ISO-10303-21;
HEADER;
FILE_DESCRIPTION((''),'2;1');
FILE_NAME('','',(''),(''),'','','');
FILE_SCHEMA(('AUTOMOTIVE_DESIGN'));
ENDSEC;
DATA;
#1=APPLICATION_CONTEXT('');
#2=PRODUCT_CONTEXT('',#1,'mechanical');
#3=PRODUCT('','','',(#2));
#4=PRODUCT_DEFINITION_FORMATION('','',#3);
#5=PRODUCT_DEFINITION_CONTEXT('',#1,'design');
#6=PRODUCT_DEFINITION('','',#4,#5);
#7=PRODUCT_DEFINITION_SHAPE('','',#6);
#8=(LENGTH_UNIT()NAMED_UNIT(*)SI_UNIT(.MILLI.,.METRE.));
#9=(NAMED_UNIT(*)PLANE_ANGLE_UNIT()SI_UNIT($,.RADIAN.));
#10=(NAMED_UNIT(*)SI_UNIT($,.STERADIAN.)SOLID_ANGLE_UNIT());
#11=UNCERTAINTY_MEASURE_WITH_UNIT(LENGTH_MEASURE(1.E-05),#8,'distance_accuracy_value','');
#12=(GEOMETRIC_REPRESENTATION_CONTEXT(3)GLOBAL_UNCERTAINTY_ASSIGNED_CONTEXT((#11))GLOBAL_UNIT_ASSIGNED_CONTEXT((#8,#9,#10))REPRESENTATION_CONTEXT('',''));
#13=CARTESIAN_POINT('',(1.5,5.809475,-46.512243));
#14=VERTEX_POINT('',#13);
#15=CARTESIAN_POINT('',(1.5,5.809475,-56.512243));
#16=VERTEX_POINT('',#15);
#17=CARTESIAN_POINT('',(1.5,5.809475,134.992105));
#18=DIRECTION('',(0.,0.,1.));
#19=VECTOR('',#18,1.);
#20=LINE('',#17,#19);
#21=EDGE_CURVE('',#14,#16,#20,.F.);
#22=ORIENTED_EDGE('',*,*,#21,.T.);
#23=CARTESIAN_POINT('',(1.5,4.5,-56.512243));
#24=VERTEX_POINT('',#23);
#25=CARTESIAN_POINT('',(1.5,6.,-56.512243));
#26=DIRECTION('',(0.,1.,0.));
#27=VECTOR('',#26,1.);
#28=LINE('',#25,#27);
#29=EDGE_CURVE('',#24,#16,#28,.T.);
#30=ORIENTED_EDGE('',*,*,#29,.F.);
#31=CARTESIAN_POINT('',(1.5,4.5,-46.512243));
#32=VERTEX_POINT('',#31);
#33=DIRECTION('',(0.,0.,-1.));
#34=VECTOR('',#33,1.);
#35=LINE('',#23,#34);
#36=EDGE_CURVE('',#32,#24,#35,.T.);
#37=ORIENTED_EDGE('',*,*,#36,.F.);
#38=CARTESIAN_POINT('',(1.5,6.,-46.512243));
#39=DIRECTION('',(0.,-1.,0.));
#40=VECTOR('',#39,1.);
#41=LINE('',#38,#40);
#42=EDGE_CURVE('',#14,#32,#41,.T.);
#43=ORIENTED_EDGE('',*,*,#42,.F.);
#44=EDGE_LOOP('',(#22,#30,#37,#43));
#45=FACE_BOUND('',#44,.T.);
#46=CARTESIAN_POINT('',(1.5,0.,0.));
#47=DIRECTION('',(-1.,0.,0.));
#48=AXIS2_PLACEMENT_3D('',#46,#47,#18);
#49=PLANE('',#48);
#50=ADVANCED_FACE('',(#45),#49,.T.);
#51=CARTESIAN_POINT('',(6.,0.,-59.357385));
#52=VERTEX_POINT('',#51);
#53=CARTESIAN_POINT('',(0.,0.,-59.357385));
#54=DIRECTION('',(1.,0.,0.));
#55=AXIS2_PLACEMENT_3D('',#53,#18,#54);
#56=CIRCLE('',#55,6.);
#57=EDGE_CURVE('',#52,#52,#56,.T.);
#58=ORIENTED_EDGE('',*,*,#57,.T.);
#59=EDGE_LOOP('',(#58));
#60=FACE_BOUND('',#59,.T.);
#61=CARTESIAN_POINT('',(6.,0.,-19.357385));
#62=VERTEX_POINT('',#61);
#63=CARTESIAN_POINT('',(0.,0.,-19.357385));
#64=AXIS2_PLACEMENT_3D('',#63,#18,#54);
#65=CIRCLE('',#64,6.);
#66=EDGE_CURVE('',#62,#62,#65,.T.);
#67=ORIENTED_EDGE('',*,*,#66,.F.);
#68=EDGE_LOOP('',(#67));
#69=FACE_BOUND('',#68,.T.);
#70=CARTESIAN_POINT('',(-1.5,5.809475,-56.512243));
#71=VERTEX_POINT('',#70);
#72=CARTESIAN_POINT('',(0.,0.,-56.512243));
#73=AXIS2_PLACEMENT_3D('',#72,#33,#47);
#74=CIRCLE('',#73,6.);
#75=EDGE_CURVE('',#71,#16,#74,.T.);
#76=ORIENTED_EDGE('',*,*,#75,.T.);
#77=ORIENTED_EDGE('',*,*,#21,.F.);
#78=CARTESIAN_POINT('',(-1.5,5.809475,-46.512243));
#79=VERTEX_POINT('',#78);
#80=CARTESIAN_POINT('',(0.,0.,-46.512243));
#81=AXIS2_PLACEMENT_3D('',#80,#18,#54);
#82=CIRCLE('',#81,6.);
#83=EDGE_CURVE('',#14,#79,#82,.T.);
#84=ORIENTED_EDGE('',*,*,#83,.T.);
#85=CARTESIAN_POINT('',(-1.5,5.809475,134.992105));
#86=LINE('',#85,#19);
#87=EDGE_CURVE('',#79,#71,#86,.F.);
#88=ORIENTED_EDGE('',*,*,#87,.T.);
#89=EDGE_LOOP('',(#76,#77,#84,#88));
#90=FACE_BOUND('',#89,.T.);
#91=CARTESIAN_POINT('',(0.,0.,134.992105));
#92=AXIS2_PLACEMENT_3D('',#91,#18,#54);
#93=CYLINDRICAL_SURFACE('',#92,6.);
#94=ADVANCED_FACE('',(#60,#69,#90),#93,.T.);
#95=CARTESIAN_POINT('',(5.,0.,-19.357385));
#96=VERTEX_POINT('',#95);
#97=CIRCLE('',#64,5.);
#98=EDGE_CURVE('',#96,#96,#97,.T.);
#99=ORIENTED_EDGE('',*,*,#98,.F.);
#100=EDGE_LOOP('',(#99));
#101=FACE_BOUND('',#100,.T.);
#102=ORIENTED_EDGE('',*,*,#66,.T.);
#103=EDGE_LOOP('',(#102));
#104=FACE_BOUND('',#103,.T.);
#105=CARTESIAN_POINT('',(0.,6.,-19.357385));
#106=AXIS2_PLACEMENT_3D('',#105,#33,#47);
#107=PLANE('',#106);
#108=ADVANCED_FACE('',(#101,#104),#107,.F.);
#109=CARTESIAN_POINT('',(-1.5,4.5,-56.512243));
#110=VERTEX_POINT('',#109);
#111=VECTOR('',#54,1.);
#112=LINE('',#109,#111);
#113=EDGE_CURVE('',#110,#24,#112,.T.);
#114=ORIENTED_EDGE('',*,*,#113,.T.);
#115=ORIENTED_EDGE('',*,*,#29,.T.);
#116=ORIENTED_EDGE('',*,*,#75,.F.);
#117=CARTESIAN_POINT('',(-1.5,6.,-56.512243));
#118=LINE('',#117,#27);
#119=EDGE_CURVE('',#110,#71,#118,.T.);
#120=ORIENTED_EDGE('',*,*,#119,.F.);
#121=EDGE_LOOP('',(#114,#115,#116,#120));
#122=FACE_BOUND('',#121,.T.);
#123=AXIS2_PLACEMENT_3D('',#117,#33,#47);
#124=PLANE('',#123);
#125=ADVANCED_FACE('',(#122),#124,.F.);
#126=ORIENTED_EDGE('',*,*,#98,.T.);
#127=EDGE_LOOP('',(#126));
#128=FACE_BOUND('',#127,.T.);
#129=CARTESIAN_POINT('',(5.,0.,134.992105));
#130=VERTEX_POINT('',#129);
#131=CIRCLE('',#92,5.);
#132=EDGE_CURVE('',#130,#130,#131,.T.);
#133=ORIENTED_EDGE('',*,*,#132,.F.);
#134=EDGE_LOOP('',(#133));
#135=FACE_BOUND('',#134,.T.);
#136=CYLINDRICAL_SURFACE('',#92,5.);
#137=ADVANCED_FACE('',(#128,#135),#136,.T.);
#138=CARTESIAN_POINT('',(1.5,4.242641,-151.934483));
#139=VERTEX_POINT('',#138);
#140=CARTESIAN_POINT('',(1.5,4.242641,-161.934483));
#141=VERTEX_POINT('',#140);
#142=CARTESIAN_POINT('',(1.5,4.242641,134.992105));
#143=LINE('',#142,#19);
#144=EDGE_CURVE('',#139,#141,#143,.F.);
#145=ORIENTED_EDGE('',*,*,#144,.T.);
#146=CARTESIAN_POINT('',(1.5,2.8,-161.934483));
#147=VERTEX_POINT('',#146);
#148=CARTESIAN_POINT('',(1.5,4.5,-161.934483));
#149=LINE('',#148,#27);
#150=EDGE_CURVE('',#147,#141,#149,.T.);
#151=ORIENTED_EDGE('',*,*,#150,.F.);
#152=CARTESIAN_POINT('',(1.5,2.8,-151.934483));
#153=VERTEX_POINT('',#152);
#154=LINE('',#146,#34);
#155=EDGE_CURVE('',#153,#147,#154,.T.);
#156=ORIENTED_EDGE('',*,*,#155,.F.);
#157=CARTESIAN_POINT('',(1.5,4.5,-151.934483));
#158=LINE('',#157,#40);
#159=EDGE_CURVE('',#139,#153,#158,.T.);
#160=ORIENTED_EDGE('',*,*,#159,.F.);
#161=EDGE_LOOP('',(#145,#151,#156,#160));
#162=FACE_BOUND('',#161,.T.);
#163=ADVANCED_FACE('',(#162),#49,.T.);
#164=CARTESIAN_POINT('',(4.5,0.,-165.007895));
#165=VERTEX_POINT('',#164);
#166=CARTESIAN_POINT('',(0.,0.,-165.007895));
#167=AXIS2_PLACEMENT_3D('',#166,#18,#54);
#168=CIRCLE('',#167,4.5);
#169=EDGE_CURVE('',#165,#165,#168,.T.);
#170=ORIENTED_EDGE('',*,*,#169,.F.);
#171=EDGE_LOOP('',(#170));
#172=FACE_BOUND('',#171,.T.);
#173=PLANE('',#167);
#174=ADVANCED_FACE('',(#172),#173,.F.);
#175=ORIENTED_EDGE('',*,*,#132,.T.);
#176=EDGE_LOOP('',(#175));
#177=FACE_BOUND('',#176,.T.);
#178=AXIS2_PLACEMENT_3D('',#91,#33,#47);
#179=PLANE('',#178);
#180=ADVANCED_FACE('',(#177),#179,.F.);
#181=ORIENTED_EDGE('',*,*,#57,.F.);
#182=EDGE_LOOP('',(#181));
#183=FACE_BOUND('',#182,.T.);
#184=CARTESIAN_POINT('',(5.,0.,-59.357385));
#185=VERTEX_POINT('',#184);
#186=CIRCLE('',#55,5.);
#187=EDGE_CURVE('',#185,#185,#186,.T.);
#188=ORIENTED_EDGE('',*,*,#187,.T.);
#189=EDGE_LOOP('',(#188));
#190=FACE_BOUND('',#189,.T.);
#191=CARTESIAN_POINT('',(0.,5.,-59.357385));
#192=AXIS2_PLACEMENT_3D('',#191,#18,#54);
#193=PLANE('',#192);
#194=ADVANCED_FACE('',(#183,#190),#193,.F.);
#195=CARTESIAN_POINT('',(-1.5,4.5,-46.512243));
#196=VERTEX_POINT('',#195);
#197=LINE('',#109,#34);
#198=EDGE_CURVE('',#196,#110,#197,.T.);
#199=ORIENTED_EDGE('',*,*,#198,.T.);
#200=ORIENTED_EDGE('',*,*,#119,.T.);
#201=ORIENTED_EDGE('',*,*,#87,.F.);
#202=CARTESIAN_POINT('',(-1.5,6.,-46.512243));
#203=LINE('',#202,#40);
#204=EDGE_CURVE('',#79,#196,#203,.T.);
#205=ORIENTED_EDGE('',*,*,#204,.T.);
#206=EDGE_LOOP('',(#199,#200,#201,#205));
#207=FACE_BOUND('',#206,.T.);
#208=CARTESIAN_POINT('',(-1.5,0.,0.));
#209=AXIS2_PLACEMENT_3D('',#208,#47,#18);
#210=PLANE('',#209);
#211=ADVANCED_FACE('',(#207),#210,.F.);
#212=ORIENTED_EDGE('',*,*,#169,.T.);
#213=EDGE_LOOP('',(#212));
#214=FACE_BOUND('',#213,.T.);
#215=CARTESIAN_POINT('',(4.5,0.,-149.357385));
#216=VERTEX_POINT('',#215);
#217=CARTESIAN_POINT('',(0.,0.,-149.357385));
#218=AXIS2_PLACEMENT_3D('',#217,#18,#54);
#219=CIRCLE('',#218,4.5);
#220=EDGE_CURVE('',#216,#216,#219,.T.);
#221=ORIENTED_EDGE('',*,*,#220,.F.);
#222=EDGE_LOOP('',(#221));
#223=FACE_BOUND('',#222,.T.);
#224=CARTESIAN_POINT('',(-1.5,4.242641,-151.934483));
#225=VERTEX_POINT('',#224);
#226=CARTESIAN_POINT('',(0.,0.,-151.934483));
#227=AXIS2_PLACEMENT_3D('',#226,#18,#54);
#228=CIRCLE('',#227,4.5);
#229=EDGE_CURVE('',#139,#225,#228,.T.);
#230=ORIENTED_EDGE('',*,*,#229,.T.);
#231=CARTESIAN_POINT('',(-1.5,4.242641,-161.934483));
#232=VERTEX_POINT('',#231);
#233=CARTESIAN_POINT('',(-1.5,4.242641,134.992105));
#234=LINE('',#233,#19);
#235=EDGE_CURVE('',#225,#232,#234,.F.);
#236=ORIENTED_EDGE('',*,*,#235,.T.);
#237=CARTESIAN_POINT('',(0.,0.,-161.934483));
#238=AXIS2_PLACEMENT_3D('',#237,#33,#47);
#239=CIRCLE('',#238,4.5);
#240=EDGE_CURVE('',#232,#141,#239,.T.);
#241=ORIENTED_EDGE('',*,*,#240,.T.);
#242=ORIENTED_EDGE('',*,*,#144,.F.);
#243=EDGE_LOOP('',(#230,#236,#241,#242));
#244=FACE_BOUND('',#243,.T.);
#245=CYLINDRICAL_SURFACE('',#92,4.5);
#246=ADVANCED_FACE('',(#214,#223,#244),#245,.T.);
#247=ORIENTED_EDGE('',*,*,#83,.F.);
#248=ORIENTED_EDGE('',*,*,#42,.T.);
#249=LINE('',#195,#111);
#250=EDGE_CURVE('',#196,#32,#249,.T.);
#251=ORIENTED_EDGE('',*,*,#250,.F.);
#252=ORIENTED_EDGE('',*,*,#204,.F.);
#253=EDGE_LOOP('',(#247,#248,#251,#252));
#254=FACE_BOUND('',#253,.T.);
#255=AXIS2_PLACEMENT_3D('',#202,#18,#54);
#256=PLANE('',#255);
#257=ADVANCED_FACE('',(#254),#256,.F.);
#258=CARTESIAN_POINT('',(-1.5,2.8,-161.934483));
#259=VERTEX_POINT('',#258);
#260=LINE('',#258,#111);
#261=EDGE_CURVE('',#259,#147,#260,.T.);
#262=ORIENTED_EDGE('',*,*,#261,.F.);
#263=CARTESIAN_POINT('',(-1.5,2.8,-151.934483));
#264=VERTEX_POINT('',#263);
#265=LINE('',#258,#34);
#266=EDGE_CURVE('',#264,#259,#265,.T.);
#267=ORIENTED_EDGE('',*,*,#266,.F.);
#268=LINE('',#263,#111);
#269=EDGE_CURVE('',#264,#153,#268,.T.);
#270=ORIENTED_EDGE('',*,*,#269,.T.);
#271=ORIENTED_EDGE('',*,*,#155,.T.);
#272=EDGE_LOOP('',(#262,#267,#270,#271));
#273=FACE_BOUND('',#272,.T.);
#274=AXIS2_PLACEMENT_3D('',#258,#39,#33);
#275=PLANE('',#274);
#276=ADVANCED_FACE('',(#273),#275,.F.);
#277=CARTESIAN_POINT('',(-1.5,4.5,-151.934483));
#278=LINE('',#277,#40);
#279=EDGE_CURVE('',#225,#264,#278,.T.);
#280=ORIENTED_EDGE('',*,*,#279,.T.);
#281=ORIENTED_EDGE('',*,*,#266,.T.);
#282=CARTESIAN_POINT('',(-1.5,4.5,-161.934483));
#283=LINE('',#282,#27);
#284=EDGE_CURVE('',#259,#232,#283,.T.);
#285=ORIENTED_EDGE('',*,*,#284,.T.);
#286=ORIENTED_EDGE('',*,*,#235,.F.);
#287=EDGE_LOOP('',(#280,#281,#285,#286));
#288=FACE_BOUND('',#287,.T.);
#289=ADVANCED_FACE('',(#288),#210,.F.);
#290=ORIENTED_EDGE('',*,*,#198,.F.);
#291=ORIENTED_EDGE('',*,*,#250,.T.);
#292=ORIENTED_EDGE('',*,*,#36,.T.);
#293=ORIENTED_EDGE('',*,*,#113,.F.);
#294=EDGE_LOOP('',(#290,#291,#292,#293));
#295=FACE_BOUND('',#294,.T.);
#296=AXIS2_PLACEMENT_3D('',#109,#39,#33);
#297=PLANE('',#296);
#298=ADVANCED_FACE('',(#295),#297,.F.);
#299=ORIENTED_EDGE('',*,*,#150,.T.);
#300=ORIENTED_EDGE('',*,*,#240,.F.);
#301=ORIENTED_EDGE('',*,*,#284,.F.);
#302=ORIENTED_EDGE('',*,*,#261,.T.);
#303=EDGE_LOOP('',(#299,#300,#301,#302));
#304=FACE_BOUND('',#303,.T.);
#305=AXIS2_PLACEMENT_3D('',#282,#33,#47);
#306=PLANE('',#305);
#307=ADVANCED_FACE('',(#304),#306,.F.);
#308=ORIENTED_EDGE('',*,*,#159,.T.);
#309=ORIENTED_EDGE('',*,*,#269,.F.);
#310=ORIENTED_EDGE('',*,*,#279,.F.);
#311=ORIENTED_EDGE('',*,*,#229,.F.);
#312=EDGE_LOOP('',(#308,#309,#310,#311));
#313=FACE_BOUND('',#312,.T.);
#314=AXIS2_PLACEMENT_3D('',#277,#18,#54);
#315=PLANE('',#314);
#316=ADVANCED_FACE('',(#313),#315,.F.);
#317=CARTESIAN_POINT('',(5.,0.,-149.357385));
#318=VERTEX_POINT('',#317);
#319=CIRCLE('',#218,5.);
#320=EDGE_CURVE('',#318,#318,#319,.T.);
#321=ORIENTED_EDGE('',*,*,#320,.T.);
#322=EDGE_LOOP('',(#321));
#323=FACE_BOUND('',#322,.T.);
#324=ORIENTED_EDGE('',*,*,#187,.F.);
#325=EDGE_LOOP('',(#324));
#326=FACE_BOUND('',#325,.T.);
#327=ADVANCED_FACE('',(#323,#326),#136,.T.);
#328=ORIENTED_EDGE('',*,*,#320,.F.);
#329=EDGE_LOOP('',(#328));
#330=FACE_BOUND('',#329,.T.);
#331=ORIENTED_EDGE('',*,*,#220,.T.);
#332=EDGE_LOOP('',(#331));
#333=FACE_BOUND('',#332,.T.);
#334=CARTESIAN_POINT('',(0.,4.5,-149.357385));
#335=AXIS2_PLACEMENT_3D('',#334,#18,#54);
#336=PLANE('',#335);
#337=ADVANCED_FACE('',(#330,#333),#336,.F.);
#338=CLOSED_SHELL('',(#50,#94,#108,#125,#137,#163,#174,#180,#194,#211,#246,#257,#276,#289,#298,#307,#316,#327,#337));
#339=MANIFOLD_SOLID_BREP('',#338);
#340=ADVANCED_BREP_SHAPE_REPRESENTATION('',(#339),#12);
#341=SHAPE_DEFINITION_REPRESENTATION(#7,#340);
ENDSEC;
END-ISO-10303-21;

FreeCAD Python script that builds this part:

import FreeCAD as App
import Part
import Sketcher
from FreeCAD import Vector
Q = App.Units.Quantity


def add_polygon(sketch, points):
    """Adds a closed chain of lines whose ends are joined by coincident constraints."""
    first, n = sketch.GeometryCount, len(points)
    for a, b in zip(points, points[1:] + points[:1]):
        sketch.addGeometry(Part.LineSegment(App.Vector(*a, 0), App.Vector(*b, 0)), False)
    for i in range(n):
        sketch.addConstraint(Sketcher.Constraint("Coincident", first + i, 2, first + (i + 1) % n, 1))

doc = App.newDocument("Part")
body = doc.addObject("PartDesign::Body", "Body")

# Sketch on YZ plane
sketch1 = body.newObject("Sketcher::SketchObject", "Sketch")
sketch1.AttachmentSupport = (doc.getObject("YZ_Plane"), [""])
sketch1.MapMode = "FlatFace"
add_polygon(sketch1, [(0, 134.992105), (0, -165.007895), (4.5, -165.007895), (4.5, -149.357385), (5, -149.357385), (5, -59.357385), (6, -59.357385), (6, -19.357385), (5, -19.357385), (5, 134.992105)])  # lines 0-9
sketch1.addConstraint([
    Sketcher.Constraint("Vertical", 0),
    Sketcher.Constraint("Horizontal", 1),
    Sketcher.Constraint("Vertical", 2),
    Sketcher.Constraint("Horizontal", 3),
    Sketcher.Constraint("Vertical", 4),
    Sketcher.Constraint("Horizontal", 5),
    Sketcher.Constraint("Vertical", 6),
    Sketcher.Constraint("Horizontal", 7),
    Sketcher.Constraint("Vertical", 8),
    Sketcher.Constraint("Horizontal", 9),
    Sketcher.Constraint("PointOnObject", 0, 2, -2),
    Sketcher.Constraint("Vertical", 4, 2, 7, 2),
    Sketcher.Constraint("DistanceX", 5, 1, 5, 2, Q("1 mm")),
    Sketcher.Constraint("DistanceX", 9, 2, 9, 1, Q("5 mm")),
    Sketcher.Constraint("DistanceY", 0, 2, 0, 1, Q("300 mm")),
    Sketcher.Constraint("DistanceY", 4, 1, 4, 2, Q("90 mm")),
    Sketcher.Constraint("DistanceY", 6, 1, 6, 2, Q("40 mm")),
    Sketcher.Constraint("DistanceX", 1, 1, 1, 2, Q("4.5 mm")),
    Sketcher.Constraint("DistanceY", 2, 1, 2, 2, Q("15.650511 mm")),
    Sketcher.Constraint("DistanceY", 0, 2, -1, 1, Q("165.007895 mm")),
])
revolution = body.newObject("PartDesign::Revolution", "Revolution")
revolution.Profile = sketch1
revolution.ReferenceAxis = (sketch1, ["V_Axis"])
revolution.Angle = 360

# Sketch on YZ plane
sketch2 = body.newObject("Sketcher::SketchObject", "Sketch001")
sketch2.AttachmentSupport = (doc.getObject("YZ_Plane"), [""])
sketch2.MapMode = "FlatFace"
add_polygon(sketch2, [(6, -46.512243), (4.5, -46.512243), (4.5, -56.512243), (6, -56.512243)])  # lines 0-3
sketch2.addConstraint([
    Sketcher.Constraint("Horizontal", 0),
    Sketcher.Constraint("Vertical", 1),
    Sketcher.Constraint("Horizontal", 2),
    Sketcher.Constraint("Vertical", 3),
    Sketcher.Constraint("DistanceY", 1, 2, 1, 1, Q("10 mm")),
    Sketcher.Constraint("DistanceX", 0, 2, 0, 1, Q("1.5 mm")),
    Sketcher.Constraint("DistanceX", -1, 1, 2, 2, Q("6 mm")),
    Sketcher.Constraint("DistanceY", 0, 2, -1, 1, Q("46.512243 mm")),
])
pocket1 = body.newObject("PartDesign::Pocket", "Pocket")
pocket1.Profile = sketch2
pocket1.Length = 3
pocket1.Midplane = True

# Sketch on YZ plane
sketch3 = body.newObject("Sketcher::SketchObject", "Sketch002")
sketch3.AttachmentSupport = (doc.getObject("YZ_Plane"), [""])
sketch3.MapMode = "FlatFace"
add_polygon(sketch3, [(4.5, -151.934483), (2.8, -151.934483), (2.8, -161.934483), (4.5, -161.934483)])  # lines 0-3
sketch3.addConstraint([
    Sketcher.Constraint("Horizontal", 0),
    Sketcher.Constraint("Vertical", 1),
    Sketcher.Constraint("Horizontal", 2),
    Sketcher.Constraint("Vertical", 3),
    Sketcher.Constraint("DistanceY", 1, 2, 1, 1, Q("10 mm")),
    Sketcher.Constraint("DistanceX", 0, 2, 0, 1, Q("1.7 mm")),
    Sketcher.Constraint("DistanceX", -1, 1, 0, 2, Q("2.8 mm")),
    Sketcher.Constraint("DistanceY", 0, 2, -1, 1, Q("151.934483 mm")),
])
pocket2 = body.newObject("PartDesign::Pocket", "Pocket001")
pocket2.Profile = sketch3
pocket2.Length = 3
pocket2.Midplane = True

doc.recompute()
